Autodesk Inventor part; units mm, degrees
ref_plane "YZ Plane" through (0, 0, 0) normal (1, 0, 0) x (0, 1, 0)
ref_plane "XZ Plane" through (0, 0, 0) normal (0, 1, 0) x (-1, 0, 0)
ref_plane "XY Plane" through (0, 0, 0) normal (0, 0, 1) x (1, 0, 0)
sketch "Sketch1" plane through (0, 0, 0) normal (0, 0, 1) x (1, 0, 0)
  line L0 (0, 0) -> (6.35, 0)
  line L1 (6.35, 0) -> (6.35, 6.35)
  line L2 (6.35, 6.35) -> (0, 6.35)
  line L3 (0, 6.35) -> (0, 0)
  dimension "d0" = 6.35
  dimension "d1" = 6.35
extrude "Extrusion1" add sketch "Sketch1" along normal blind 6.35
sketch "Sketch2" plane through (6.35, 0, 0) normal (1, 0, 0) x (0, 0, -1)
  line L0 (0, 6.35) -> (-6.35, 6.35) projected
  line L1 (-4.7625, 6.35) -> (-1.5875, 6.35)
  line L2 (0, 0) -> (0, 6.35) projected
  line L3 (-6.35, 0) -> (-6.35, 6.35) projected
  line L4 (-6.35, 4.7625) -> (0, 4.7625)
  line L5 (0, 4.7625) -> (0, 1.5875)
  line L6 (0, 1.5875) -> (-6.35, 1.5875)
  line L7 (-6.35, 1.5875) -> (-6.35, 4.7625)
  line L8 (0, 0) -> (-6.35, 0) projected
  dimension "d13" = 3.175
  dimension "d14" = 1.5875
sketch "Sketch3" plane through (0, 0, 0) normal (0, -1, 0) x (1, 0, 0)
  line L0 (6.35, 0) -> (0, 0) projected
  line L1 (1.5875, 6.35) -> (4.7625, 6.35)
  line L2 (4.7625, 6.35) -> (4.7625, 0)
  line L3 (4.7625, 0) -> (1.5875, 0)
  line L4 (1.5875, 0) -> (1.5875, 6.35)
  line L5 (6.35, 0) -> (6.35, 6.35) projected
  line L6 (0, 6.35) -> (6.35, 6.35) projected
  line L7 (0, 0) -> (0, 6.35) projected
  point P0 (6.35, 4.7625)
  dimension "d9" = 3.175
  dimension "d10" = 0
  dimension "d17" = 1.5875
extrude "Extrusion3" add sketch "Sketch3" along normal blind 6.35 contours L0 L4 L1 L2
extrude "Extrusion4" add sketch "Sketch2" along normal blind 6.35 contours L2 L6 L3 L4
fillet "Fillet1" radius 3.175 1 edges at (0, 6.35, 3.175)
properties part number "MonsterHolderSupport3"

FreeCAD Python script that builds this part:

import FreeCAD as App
import Part
import Sketcher
Q = App.Units.Quantity


def edges_at(feature, points):
    """Names of the edges that pass closest to the given points."""
    edges = feature.Shape.Edges
    near = lambda p: min(range(len(edges)), key=lambda i: edges[i].distToShape(Part.Vertex(*p))[0])
    return sorted({f"Edge{near(p) + 1}" for p in points})

doc = App.newDocument("Part")
body = doc.addObject("PartDesign::Body", "Body")

# Sketch on XY plane
sketch1 = body.newObject("Sketcher::SketchObject", "Sketch")
sketch1.AttachmentSupport = (doc.getObject("XY_Plane"), [""])
sketch1.MapMode = "FlatFace"
sketch1.addGeometry(Part.LineSegment(App.Vector(0, 6, 0), App.Vector(0, 0, 0)), False)
sketch1.addGeometry(Part.LineSegment(App.Vector(0, 0, 0), App.Vector(6, 0, 0)), False)
sketch1.addGeometry(Part.LineSegment(App.Vector(6, 0, 0), App.Vector(6, 6, 0)), False)
sketch1.addGeometry(Part.LineSegment(App.Vector(6, 6, 0), App.Vector(0, 6, 0)), False)
sketch1.addConstraint(Sketcher.Constraint("Coincident", 0, 2, 1, 1))
sketch1.addConstraint(Sketcher.Constraint("Coincident", 1, 2, 2, 1))
sketch1.addConstraint(Sketcher.Constraint("Coincident", 2, 2, 3, 1))
sketch1.addConstraint(Sketcher.Constraint("Coincident", 3, 2, 0, 1))
sketch1.addConstraint(Sketcher.Constraint("Vertical", 0))
sketch1.addConstraint(Sketcher.Constraint("Horizontal", 1))
sketch1.addConstraint(Sketcher.Constraint("Vertical", 2))
sketch1.addConstraint(Sketcher.Constraint("Horizontal", 3))
sketch1.addConstraint(Sketcher.Constraint("Coincident", 0, 2, -1, 1))
sketch1.addConstraint(Sketcher.Constraint("Equal", 3, 0))
sketch1.addConstraint(Sketcher.Constraint("DistanceX", 1, 1, 1, 2, Q("0.25 in")))
pad1 = body.newObject("PartDesign::Pad", "Pad")
pad1.Profile = sketch1
pad1.Length = Q("0.25 in")

# Sketch on XZ plane
sketch2 = body.newObject("Sketcher::SketchObject", "Sketch001")
sketch2.AttachmentSupport = (doc.getObject("XZ_Plane"), [""])
sketch2.MapMode = "FlatFace"
sketch2.addGeometry(Part.LineSegment(App.Vector(1.6, 0, 0), App.Vector(4.8, 0, 0)), False)
sketch2.addGeometry(Part.LineSegment(App.Vector(4.8, 0, 0), App.Vector(4.8, 6.3, 0)), False)
sketch2.addGeometry(Part.LineSegment(App.Vector(4.8, 6.3, 0), App.Vector(1.6, 6.3, 0)), False)
sketch2.addGeometry(Part.LineSegment(App.Vector(1.6, 6.3, 0), App.Vector(1.6, 0, 0)), False)
sketch2.addConstraint(Sketcher.Constraint("Coincident", 0, 2, 1, 1))
sketch2.addConstraint(Sketcher.Constraint("Coincident", 1, 2, 2, 1))
sketch2.addConstraint(Sketcher.Constraint("Coincident", 2, 2, 3, 1))
sketch2.addConstraint(Sketcher.Constraint("Coincident", 3, 2, 0, 1))
sketch2.addConstraint(Sketcher.Constraint("Horizontal", 0))
sketch2.addConstraint(Sketcher.Constraint("Vertical", 1))
sketch2.addConstraint(Sketcher.Constraint("Horizontal", 2))
sketch2.addConstraint(Sketcher.Constraint("Vertical", 3))
sketch2.addConstraint(Sketcher.Constraint("PointOnObject", 0, 2, -1))
sketch2.addConstraint(Sketcher.Constraint("DistanceX", 0, 1, 0, 2, Q("0.125 in")))
sketch2.addConstraint(Sketcher.Constraint("DistanceX", -1, 1, 2, 2, Q("0.0625 in")))
sketch2.addConstraint(Sketcher.Constraint("DistanceY", 1, 1, 1, 2, Q("0.25 in")))
pad2 = body.newObject("PartDesign::Pad", "Pad001")
pad2.Profile = sketch2
pad2.Length = Q("0.25 in")

# Sketch on YZ plane
sketch3 = body.newObject("Sketcher::SketchObject", "Sketch002")
sketch3.AttachmentSupport = (doc.getObject("YZ_Plane"), [""])
sketch3.MapMode = "FlatFace"
sketch3.AttachmentOffset = App.Placement(App.Vector(0, 0, 0.25 * 25.4), App.Rotation())
sketch3.addGeometry(Part.LineSegment(App.Vector(1.6, 0, 0), App.Vector(4.8, 0, 0)), False)
sketch3.addGeometry(Part.LineSegment(App.Vector(4.8, 0, 0), App.Vector(4.8, 6.3, 0)), False)
sketch3.addGeometry(Part.LineSegment(App.Vector(4.8, 6.3, 0), App.Vector(1.6, 6.3, 0)), False)
sketch3.addGeometry(Part.LineSegment(App.Vector(1.6, 6.3, 0), App.Vector(1.6, 0, 0)), False)
sketch3.addConstraint(Sketcher.Constraint("Coincident", 0, 2, 1, 1))
sketch3.addConstraint(Sketcher.Constraint("Coincident", 1, 2, 2, 1))
sketch3.addConstraint(Sketcher.Constraint("Coincident", 2, 2, 3, 1))
sketch3.addConstraint(Sketcher.Constraint("Coincident", 3, 2, 0, 1))
sketch3.addConstraint(Sketcher.Constraint("Horizontal", 0))
sketch3.addConstraint(Sketcher.Constraint("Vertical", 1))
sketch3.addConstraint(Sketcher.Constraint("Horizontal", 2))
sketch3.addConstraint(Sketcher.Constraint("Vertical", 3))
sketch3.addConstraint(Sketcher.Constraint("PointOnObject", 0, 2, -1))
sketch3.addConstraint(Sketcher.Constraint("DistanceX", 0, 1, 0, 2, Q("0.125 in")))
sketch3.addConstraint(Sketcher.Constraint("DistanceX", -1, 1, 2, 2, Q("0.0625 in")))
sketch3.addConstraint(Sketcher.Constraint("DistanceY", 1, 1, 1, 2, Q("0.25 in")))
pad3 = body.newObject("PartDesign::Pad", "Pad002")
pad3.Profile = sketch3
pad3.Length = Q("0.25 in")
doc.recompute()

fillet = body.newObject("PartDesign::Fillet", "Fillet")
fillet.Base = (pad3, edges_at(pad3, [(0, 6.35, 3.175)]))
fillet.Radius = Q("0.125 in")

doc.recompute()
